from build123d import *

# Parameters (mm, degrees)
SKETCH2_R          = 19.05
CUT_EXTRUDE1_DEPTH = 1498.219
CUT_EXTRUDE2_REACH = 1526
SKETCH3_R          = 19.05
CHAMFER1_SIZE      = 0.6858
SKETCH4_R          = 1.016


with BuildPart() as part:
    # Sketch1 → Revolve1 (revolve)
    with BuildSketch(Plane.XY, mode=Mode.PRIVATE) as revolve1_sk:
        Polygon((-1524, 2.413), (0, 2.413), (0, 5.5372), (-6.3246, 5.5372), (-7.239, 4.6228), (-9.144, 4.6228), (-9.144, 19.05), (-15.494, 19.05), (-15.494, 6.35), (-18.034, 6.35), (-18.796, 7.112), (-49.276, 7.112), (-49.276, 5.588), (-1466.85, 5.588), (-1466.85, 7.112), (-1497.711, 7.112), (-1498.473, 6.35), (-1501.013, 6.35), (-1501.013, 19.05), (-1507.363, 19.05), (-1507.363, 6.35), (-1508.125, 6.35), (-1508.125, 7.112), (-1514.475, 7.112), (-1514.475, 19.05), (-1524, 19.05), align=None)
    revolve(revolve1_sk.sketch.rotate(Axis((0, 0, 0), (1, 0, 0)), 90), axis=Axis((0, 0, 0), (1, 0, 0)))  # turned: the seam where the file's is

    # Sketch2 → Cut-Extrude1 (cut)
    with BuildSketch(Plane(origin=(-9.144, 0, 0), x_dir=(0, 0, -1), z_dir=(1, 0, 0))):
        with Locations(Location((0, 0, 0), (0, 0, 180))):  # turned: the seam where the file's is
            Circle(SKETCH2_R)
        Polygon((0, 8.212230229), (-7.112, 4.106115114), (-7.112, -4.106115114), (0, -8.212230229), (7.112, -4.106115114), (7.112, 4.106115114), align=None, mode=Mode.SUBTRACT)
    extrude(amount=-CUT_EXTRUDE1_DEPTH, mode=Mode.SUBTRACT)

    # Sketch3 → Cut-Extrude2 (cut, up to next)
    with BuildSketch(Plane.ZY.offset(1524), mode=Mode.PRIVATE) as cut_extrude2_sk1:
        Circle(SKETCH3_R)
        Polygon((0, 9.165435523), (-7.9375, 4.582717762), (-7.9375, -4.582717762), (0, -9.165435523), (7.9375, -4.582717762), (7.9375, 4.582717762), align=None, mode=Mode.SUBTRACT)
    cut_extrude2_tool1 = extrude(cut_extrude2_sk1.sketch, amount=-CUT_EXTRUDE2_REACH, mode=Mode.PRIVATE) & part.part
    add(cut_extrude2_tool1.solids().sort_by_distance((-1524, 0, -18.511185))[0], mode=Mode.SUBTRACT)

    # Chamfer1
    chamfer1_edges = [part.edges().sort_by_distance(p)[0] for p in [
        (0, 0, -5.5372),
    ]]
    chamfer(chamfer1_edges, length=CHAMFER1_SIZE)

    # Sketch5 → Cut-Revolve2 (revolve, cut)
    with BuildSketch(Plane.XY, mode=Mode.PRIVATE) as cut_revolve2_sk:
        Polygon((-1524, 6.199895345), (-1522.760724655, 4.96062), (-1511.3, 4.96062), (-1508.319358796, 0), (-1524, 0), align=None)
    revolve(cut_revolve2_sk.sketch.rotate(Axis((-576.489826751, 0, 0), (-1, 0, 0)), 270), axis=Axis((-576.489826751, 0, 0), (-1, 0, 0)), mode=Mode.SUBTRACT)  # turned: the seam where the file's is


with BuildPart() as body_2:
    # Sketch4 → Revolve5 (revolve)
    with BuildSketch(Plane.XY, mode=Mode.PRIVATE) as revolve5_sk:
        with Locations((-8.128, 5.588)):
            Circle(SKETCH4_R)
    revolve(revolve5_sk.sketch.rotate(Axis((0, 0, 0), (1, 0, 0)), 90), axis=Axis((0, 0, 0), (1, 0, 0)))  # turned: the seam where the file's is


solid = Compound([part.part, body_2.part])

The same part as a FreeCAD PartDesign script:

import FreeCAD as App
import Part
import Sketcher
from FreeCAD import Vector
Q = App.Units.Quantity


def edges_at(feature, points):
    """Names of the edges that pass closest to the given points."""
    edges = feature.Shape.Edges
    near = lambda p: min(range(len(edges)), key=lambda i: edges[i].distToShape(Part.Vertex(*p))[0])
    return sorted({f"Edge{near(p) + 1}" for p in points})


def add_polygon(sketch, points):
    """Adds a closed chain of lines whose ends are joined by coincident constraints."""
    first, n = sketch.GeometryCount, len(points)
    for a, b in zip(points, points[1:] + points[:1]):
        sketch.addGeometry(Part.LineSegment(App.Vector(*a, 0), App.Vector(*b, 0)), False)
    for i in range(n):
        sketch.addConstraint(Sketcher.Constraint("Coincident", first + i, 2, first + (i + 1) % n, 1))

doc = App.newDocument("Part")
body = doc.addObject("PartDesign::Body", "Body")

sketch1 = body.newObject("Sketcher::SketchObject", "Sketch")
sketch1.AttachmentSupport = (doc.getObject("XY_Plane"), [""])
sketch1.MapMode = "FlatFace"
add_polygon(sketch1, [(-1524, 2.4), (0, 2.4), (0, 5.5), (-6.3, 5.5), (-7.2, 4.6), (-9.1, 4.6), (-9.1, 19.1), (-15.5, 19.1), (-15.5, 6.3), (-18, 6.3), (-18.8, 7.1), (-49.3, 7.1), (-49.3, 5.6), (-1466.8, 5.6), (-1466.8, 7.1), (-1497.7, 7.1), (-1498.5, 6.3), (-1501, 6.3), (-1501, 19.1), (-1507.4, 19.1), (-1507.4, 6.3), (-1508.1, 6.3), (-1508.1, 7.1), (-1514.5, 7.1), (-1514.5, 19.1), (-1524, 19.1)])
sketch1.addConstraint([
    Sketcher.Constraint("Horizontal", 0),
    Sketcher.Constraint("Vertical", 1),
    Sketcher.Constraint("Horizontal", 2),
    Sketcher.Constraint("Horizontal", 4),
    Sketcher.Constraint("Vertical", 5),
    Sketcher.Constraint("Horizontal", 6),
    Sketcher.Constraint("Vertical", 7),
    Sketcher.Constraint("Horizontal", 8),
    Sketcher.Constraint("Horizontal", 10),
    Sketcher.Constraint("Vertical", 11),
    Sketcher.Constraint("Horizontal", 12),
    Sketcher.Constraint("Vertical", 13),
    Sketcher.Constraint("Horizontal", 14),
    Sketcher.Constraint("Horizontal", 16),
    Sketcher.Constraint("Vertical", 17),
    Sketcher.Constraint("Horizontal", 18),
    Sketcher.Constraint("Vertical", 19),
    Sketcher.Constraint("Horizontal", 20),
    Sketcher.Constraint("Vertical", 21),
    Sketcher.Constraint("Horizontal", 22),
    Sketcher.Constraint("Vertical", 23),
    Sketcher.Constraint("Horizontal", 24),
    Sketcher.Constraint("Vertical", 25),
    Sketcher.Constraint("PointOnObject", 0, 2, -2),
    Sketcher.Constraint("Perpendicular", 3, 9),
    Sketcher.Constraint("Perpendicular", 9, 15),
    Sketcher.Constraint("Horizontal", 10, 2, 13, 2),
    Sketcher.Constraint("Horizontal", 8, 2, 15, 2),
    Sketcher.Constraint("Horizontal", 6, 2, 17, 2),
    Sketcher.Constraint("Horizontal", 16, 2, 19, 2),
    Sketcher.Constraint("Horizontal", 14, 2, 21, 2),
    Sketcher.Constraint("Horizontal", 18, 2, 23, 2),
    Sketcher.Constraint("Equal", 8, 16),
    Sketcher.Constraint("Equal", 6, 18),
    Sketcher.Constraint("Equal", 18, 22),
    Sketcher.Constraint("Equal", 20, 21),
    Sketcher.Constraint("Equal", 9, 15),
    Sketcher.Constraint("DistanceX", 0, 1, 0, 2, Q("60 in")),
    Sketcher.Constraint("DistanceX", 8, 2, 8, 1, Q("0.1 in")),
    Sketcher.Constraint("DistanceX", 10, 2, 10, 1, Q("1.2 in")),
    Sketcher.Constraint("DistanceY", 7, 2, 7, 1, Q("0.5 in")),
    Sketcher.Constraint("DistanceX", 6, 2, 6, 1, Q("0.25 in")),
    Sketcher.Constraint("DistanceX", 12, 2, 12, 1, Q("55.81 in")),
    Sketcher.Constraint("DistanceX", 20, 2, 20, 1, Q("0.03 in")),
    Sketcher.Constraint("DistanceY", 11, 2, 11, 1, Q("0.06 in")),
    Sketcher.Constraint("DistanceX", 2, 2, 2, 1, Q("0.249 in")),
    Sketcher.Constraint("DistanceX", 4, 2, 4, 1, Q("0.075 in")),
    Sketcher.Constraint("DistanceX", 14, 2, 14, 1, Q("1.215 in")),
    Sketcher.Constraint("DistanceX", 24, 2, 24, 1, Q("0.375 in")),
    Sketcher.Constraint("DistanceY", 1, 1, 1, 2, Q("0.123 in")),
    Sketcher.Constraint("DistanceY", 5, 1, 5, 2, Q("0.568 in")),
    Sketcher.Constraint("DistanceY", -1, 1, 5, 2, Q("0.75 in")),
])
revolution = body.newObject("PartDesign::Revolution", "Revolution")
revolution.Profile = sketch1
revolution.ReferenceAxis = (sketch1, ["H_Axis"])
revolution.Angle = 360

sketch2 = body.newObject("Sketcher::SketchObject", "Sketch001")
sketch2.AttachmentSupport = (doc.getObject("YZ_Plane"), [""])
sketch2.MapMode = "FlatFace"
sketch2.AttachmentOffset = App.Placement(Vector(0, 0, -0.36 * 25.4), App.Rotation())
sketch2.addGeometry(Part.Circle(Vector(0, 0, 0), Vector(0, 0, 1), 19), False)
add_polygon(sketch2, [(4, 7), (8, 0), (4, -7), (-4, -7), (-8, 0), (-4, 7)])
sketch2.addConstraint([
    Sketcher.Constraint("Horizontal", 3),
    Sketcher.Constraint("Horizontal", 6),
    Sketcher.Constraint("Coincident", 0, 3, -1, 1),
    Sketcher.Constraint("Symmetric", 1, 2, 4, 2, -1, 1),
    Sketcher.Constraint("Symmetric", 2, 2, 5, 2, -1, 1),
    Sketcher.Constraint("PointOnObject", 1, 2, -1),
    Sketcher.Constraint("Parallel", 1, 4),
    Sketcher.Constraint("Vertical", 3, 2, 5, 2),
    Sketcher.Constraint("Diameter", 0, Q("1.5 in")),
    Sketcher.Constraint("Angle", 1, Q("-60 deg")),
    Sketcher.Constraint("DistanceY", 2, 2, -1, 1, Q("0.28 in")),
    Sketcher.Constraint("DistanceX", 3, 2, 3, 1, 8.21223),
])
pocket1 = body.newObject("PartDesign::Pocket", "Pocket")
pocket1.Profile = sketch2
pocket1.Length = Q("58.985 in")

sketch3 = body.newObject("Sketcher::SketchObject", "Sketch002")
sketch3.AttachmentSupport = (doc.getObject("YZ_Plane"), [""])
sketch3.MapMode = "FlatFace"
sketch3.AttachmentOffset = App.Placement(Vector(0, 0, -60 * 25.4), App.Rotation())
sketch3.addGeometry(Part.Circle(Vector(0, 0, 0), Vector(0, 0, 1), 19), False)
add_polygon(sketch3, [(5, -8), (9, 0), (5, 8), (-5, 8), (-9, 0), (-5, -8)])
sketch3.addConstraint([
    Sketcher.Constraint("Horizontal", 3),
    Sketcher.Constraint("Horizontal", 6),
    Sketcher.Constraint("Coincident", 0, 3, -1, 1),
    Sketcher.Constraint("Symmetric", 1, 2, 4, 2, -1, 1),
    Sketcher.Constraint("Symmetric", 2, 2, 5, 2, -1, 1),
    Sketcher.Constraint("PointOnObject", 1, 2, -1),
    Sketcher.Constraint("Parallel", 1, 4),
    Sketcher.Constraint("Vertical", 3, 2, 5, 2),
    Sketcher.Constraint("Diameter", 0, Q("1.5 in")),
    Sketcher.Constraint("Angle", 1, Q("60 deg")),
    Sketcher.Constraint("DistanceY", -1, 1, 2, 2, Q("0.3125 in")),
    Sketcher.Constraint("DistanceX", 3, 2, 3, 1, 9.165436),
])
pocket2 = body.newObject("PartDesign::Pocket", "Pocket001")
pocket2.Profile = sketch3
pocket2.Length = Q("0.375 in")
pocket2.Reversed = True
doc.recompute()

chamfer = body.newObject("PartDesign::Chamfer", "Chamfer")
chamfer.Base = (pocket2, edges_at(pocket2, [(0, 0, -5.537)]))
chamfer.Size = Q("0.027 in")

sketch4 = body.newObject("Sketcher::SketchObject", "Sketch003")
sketch4.AttachmentSupport = (doc.getObject("XY_Plane"), [""])
sketch4.MapMode = "FlatFace"
add_polygon(sketch4, [(-1522.8, 5), (-1524, 6.2), (-1524, 0), (-1508.3, 0), (-1511.3, 5)])
sketch4.addConstraint([
    Sketcher.Constraint("Vertical", 1),
    Sketcher.Constraint("Horizontal", 2),
    Sketcher.Constraint("Horizontal", 4),
    Sketcher.Constraint("PointOnObject", 1, 2, -1),
    Sketcher.Constraint("DistanceX", 0, 2, -1, 1, Q("60 in")),
    Sketcher.Constraint("Angle", 0, Q("135 deg")),
    Sketcher.Constraint("Angle", 3, Q("121 deg")),
    Sketcher.Constraint("DistanceX", 3, 2, -1, 1, Q("59.5 in")),
    Sketcher.Constraint("Distance", 0, Q("0.069 in")),
    Sketcher.Constraint("DistanceY", -1, 1, 3, 2, Q("0.1953 in")),
])
groove = body.newObject("PartDesign::Groove", "Groove")
groove.Profile = sketch4
groove.ReferenceAxis = (sketch4, ["H_Axis"])
groove.Angle = 360
body2 = doc.addObject("PartDesign::Body", "Body001")

sketch5 = body2.newObject("Sketcher::SketchObject", "Sketch004")
sketch5.AttachmentSupport = (doc.getObject("XY_Plane001"), [""])
sketch5.MapMode = "FlatFace"
sketch5.addGeometry(Part.Circle(Vector(-8.1, 5.6, 0), Vector(0, 0, 1), 1), False)
sketch5.addConstraint([
    Sketcher.Constraint("Diameter", 0, Q("0.08 in")),
    Sketcher.Constraint("DistanceX", 0, 3, -1, 1, Q("0.32 in")),
    Sketcher.Constraint("DistanceY", -1, 1, 0, 3, Q("0.22 in")),
])
revolution2 = body2.newObject("PartDesign::Revolution", "Revolution001")
revolution2.Profile = sketch5
revolution2.ReferenceAxis = (sketch5, ["H_Axis"])
revolution2.Angle = 360

doc.recompute()
